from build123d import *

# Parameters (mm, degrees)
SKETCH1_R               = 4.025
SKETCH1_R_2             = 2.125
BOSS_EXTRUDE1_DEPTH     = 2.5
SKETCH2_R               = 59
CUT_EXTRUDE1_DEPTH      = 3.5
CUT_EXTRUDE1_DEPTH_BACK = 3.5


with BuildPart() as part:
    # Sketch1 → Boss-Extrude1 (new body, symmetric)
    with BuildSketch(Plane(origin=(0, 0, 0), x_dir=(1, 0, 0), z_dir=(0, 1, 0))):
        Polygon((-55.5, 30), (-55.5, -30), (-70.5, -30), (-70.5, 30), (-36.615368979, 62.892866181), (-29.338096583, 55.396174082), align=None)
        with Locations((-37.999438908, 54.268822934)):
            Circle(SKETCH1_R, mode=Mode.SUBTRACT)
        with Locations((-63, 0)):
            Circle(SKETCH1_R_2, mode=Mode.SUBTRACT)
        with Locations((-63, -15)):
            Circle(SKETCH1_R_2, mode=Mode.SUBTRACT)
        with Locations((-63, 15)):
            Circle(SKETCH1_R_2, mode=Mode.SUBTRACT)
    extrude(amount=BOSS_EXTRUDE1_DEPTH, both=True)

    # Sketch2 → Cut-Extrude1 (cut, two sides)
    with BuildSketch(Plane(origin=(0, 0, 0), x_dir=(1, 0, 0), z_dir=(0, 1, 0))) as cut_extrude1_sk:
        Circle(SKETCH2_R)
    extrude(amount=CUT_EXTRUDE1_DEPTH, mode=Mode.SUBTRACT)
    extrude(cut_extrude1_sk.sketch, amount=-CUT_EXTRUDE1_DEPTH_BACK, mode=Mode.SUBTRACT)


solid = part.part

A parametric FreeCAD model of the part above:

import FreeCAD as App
import Part
import Sketcher
from FreeCAD import Vector
Q = App.Units.Quantity

doc = App.newDocument("Part")
body = doc.addObject("PartDesign::Body", "Body")

sketch1 = body.newObject("Sketcher::SketchObject", "Sketch")
sketch1.AttachmentSupport = (doc.getObject("XZ_Plane"), [""])
sketch1.MapMode = "FlatFace"
sketch1.addGeometry([
    Part.LineSegment(Vector(-55.5, 30, 0), Vector(-55.5, -30, 0)),
    Part.LineSegment(Vector(-55.5, -30, 0), Vector(-29.3, -55.4, 0)),
    Part.LineSegment(Vector(-29.3, -55.4, 0), Vector(-36.6, -62.9, 0)),
    Part.LineSegment(Vector(-36.6, -62.9, 0), Vector(-70.5, -30, 0)),
    Part.LineSegment(Vector(-70.5, -30, 0), Vector(-70.5, 30, 0)),
    Part.LineSegment(Vector(-70.5, 30, 0), Vector(-55.5, 30, 0)),
    Part.Circle(Vector(-63, 15, 0), Vector(0, 0, 1), 2.1),
    Part.Circle(Vector(-63, 0, 0), Vector(0, 0, 1), 2.1),
    Part.Circle(Vector(-63, -15, 0), Vector(0, 0, 1), 2.1),
    Part.Circle(Vector(-38, -54.3, 0), Vector(0, 0, 1), 4),
], False)
sketch1.addConstraint([
    Sketcher.Constraint("Coincident", 0, 2, 1, 1),
    Sketcher.Constraint("Coincident", 1, 2, 2, 1),
    Sketcher.Constraint("Coincident", 2, 2, 3, 1),
    Sketcher.Constraint("Coincident", 3, 2, 4, 1),
    Sketcher.Constraint("Coincident", 4, 2, 5, 1),
    Sketcher.Constraint("Coincident", 5, 2, 0, 1),
    Sketcher.Constraint("Vertical", 0),
    Sketcher.Constraint("Vertical", 4),
    Sketcher.Constraint("Horizontal", 5),
    Sketcher.Constraint("Equal", 6, 7),
    Sketcher.Constraint("Equal", 7, 8),
    Sketcher.Constraint("Symmetric", 6, 3, 8, 3, -1),
    Sketcher.Constraint("PointOnObject", 7, 3, -1),
    Sketcher.Constraint("Perpendicular", 1, 2),
    Sketcher.Constraint("Perpendicular", 2, 3),
    Sketcher.Constraint("Horizontal", 0, 2, 3, 2),
    Sketcher.Constraint("Vertical", 6, 3, 7, 3),
    Sketcher.Constraint("Diameter", 6, Q("4.25 mm")),
    Sketcher.Constraint("Diameter", 9, Q("8.05 mm")),
    Sketcher.Constraint("DistanceX", 5, 1, 5, 2, Q("15 mm")),
    Sketcher.Constraint("DistanceY", 0, 2, 0, 1, Q("60 mm")),
    Sketcher.Constraint("DistanceX", 6, 3, -1, 1, Q("63 mm")),
    Sketcher.Constraint("DistanceY", -1, 1, 6, 3, Q("15 mm")),
    Sketcher.Constraint("DistanceY", 0, 2, -1, 1, Q("30 mm")),
    Sketcher.Constraint("DistanceX", 0, 2, -1, 1, Q("55.5 mm")),
    Sketcher.Constraint("Distance", 3, Q("47.224028 mm")),
    Sketcher.Constraint("DistanceX", 9, 3, -1, 1, Q("37.999439 mm")),
    Sketcher.Constraint("DistanceX", 2, 2, -1, 1, Q("36.615369 mm")),
    Sketcher.Constraint("DistanceY", 1, 2, 9, 3, Q("1.127351 mm")),
])
pad1 = body.newObject("PartDesign::Pad", "Pad")
pad1.Profile = sketch1
pad1.Length = 5
pad1.Midplane = True

sketch2 = body.newObject("Sketcher::SketchObject", "Sketch001")
sketch2.AttachmentSupport = (doc.getObject("XZ_Plane"), [""])
sketch2.MapMode = "FlatFace"
sketch2.addGeometry(Part.Circle(Vector(0, 0, 0), Vector(0, 0, 1), 59), False)
sketch2.addConstraint([
    Sketcher.Constraint("Coincident", 0, 3, -1, 1),
    Sketcher.Constraint("Diameter", 0, Q("118 mm")),
])
pocket1 = body.newObject("PartDesign::Pocket", "Pocket")
pocket1.Profile = sketch2
pocket1.Type = "ThroughAll"
pocket1.Midplane = True

doc.recompute()
